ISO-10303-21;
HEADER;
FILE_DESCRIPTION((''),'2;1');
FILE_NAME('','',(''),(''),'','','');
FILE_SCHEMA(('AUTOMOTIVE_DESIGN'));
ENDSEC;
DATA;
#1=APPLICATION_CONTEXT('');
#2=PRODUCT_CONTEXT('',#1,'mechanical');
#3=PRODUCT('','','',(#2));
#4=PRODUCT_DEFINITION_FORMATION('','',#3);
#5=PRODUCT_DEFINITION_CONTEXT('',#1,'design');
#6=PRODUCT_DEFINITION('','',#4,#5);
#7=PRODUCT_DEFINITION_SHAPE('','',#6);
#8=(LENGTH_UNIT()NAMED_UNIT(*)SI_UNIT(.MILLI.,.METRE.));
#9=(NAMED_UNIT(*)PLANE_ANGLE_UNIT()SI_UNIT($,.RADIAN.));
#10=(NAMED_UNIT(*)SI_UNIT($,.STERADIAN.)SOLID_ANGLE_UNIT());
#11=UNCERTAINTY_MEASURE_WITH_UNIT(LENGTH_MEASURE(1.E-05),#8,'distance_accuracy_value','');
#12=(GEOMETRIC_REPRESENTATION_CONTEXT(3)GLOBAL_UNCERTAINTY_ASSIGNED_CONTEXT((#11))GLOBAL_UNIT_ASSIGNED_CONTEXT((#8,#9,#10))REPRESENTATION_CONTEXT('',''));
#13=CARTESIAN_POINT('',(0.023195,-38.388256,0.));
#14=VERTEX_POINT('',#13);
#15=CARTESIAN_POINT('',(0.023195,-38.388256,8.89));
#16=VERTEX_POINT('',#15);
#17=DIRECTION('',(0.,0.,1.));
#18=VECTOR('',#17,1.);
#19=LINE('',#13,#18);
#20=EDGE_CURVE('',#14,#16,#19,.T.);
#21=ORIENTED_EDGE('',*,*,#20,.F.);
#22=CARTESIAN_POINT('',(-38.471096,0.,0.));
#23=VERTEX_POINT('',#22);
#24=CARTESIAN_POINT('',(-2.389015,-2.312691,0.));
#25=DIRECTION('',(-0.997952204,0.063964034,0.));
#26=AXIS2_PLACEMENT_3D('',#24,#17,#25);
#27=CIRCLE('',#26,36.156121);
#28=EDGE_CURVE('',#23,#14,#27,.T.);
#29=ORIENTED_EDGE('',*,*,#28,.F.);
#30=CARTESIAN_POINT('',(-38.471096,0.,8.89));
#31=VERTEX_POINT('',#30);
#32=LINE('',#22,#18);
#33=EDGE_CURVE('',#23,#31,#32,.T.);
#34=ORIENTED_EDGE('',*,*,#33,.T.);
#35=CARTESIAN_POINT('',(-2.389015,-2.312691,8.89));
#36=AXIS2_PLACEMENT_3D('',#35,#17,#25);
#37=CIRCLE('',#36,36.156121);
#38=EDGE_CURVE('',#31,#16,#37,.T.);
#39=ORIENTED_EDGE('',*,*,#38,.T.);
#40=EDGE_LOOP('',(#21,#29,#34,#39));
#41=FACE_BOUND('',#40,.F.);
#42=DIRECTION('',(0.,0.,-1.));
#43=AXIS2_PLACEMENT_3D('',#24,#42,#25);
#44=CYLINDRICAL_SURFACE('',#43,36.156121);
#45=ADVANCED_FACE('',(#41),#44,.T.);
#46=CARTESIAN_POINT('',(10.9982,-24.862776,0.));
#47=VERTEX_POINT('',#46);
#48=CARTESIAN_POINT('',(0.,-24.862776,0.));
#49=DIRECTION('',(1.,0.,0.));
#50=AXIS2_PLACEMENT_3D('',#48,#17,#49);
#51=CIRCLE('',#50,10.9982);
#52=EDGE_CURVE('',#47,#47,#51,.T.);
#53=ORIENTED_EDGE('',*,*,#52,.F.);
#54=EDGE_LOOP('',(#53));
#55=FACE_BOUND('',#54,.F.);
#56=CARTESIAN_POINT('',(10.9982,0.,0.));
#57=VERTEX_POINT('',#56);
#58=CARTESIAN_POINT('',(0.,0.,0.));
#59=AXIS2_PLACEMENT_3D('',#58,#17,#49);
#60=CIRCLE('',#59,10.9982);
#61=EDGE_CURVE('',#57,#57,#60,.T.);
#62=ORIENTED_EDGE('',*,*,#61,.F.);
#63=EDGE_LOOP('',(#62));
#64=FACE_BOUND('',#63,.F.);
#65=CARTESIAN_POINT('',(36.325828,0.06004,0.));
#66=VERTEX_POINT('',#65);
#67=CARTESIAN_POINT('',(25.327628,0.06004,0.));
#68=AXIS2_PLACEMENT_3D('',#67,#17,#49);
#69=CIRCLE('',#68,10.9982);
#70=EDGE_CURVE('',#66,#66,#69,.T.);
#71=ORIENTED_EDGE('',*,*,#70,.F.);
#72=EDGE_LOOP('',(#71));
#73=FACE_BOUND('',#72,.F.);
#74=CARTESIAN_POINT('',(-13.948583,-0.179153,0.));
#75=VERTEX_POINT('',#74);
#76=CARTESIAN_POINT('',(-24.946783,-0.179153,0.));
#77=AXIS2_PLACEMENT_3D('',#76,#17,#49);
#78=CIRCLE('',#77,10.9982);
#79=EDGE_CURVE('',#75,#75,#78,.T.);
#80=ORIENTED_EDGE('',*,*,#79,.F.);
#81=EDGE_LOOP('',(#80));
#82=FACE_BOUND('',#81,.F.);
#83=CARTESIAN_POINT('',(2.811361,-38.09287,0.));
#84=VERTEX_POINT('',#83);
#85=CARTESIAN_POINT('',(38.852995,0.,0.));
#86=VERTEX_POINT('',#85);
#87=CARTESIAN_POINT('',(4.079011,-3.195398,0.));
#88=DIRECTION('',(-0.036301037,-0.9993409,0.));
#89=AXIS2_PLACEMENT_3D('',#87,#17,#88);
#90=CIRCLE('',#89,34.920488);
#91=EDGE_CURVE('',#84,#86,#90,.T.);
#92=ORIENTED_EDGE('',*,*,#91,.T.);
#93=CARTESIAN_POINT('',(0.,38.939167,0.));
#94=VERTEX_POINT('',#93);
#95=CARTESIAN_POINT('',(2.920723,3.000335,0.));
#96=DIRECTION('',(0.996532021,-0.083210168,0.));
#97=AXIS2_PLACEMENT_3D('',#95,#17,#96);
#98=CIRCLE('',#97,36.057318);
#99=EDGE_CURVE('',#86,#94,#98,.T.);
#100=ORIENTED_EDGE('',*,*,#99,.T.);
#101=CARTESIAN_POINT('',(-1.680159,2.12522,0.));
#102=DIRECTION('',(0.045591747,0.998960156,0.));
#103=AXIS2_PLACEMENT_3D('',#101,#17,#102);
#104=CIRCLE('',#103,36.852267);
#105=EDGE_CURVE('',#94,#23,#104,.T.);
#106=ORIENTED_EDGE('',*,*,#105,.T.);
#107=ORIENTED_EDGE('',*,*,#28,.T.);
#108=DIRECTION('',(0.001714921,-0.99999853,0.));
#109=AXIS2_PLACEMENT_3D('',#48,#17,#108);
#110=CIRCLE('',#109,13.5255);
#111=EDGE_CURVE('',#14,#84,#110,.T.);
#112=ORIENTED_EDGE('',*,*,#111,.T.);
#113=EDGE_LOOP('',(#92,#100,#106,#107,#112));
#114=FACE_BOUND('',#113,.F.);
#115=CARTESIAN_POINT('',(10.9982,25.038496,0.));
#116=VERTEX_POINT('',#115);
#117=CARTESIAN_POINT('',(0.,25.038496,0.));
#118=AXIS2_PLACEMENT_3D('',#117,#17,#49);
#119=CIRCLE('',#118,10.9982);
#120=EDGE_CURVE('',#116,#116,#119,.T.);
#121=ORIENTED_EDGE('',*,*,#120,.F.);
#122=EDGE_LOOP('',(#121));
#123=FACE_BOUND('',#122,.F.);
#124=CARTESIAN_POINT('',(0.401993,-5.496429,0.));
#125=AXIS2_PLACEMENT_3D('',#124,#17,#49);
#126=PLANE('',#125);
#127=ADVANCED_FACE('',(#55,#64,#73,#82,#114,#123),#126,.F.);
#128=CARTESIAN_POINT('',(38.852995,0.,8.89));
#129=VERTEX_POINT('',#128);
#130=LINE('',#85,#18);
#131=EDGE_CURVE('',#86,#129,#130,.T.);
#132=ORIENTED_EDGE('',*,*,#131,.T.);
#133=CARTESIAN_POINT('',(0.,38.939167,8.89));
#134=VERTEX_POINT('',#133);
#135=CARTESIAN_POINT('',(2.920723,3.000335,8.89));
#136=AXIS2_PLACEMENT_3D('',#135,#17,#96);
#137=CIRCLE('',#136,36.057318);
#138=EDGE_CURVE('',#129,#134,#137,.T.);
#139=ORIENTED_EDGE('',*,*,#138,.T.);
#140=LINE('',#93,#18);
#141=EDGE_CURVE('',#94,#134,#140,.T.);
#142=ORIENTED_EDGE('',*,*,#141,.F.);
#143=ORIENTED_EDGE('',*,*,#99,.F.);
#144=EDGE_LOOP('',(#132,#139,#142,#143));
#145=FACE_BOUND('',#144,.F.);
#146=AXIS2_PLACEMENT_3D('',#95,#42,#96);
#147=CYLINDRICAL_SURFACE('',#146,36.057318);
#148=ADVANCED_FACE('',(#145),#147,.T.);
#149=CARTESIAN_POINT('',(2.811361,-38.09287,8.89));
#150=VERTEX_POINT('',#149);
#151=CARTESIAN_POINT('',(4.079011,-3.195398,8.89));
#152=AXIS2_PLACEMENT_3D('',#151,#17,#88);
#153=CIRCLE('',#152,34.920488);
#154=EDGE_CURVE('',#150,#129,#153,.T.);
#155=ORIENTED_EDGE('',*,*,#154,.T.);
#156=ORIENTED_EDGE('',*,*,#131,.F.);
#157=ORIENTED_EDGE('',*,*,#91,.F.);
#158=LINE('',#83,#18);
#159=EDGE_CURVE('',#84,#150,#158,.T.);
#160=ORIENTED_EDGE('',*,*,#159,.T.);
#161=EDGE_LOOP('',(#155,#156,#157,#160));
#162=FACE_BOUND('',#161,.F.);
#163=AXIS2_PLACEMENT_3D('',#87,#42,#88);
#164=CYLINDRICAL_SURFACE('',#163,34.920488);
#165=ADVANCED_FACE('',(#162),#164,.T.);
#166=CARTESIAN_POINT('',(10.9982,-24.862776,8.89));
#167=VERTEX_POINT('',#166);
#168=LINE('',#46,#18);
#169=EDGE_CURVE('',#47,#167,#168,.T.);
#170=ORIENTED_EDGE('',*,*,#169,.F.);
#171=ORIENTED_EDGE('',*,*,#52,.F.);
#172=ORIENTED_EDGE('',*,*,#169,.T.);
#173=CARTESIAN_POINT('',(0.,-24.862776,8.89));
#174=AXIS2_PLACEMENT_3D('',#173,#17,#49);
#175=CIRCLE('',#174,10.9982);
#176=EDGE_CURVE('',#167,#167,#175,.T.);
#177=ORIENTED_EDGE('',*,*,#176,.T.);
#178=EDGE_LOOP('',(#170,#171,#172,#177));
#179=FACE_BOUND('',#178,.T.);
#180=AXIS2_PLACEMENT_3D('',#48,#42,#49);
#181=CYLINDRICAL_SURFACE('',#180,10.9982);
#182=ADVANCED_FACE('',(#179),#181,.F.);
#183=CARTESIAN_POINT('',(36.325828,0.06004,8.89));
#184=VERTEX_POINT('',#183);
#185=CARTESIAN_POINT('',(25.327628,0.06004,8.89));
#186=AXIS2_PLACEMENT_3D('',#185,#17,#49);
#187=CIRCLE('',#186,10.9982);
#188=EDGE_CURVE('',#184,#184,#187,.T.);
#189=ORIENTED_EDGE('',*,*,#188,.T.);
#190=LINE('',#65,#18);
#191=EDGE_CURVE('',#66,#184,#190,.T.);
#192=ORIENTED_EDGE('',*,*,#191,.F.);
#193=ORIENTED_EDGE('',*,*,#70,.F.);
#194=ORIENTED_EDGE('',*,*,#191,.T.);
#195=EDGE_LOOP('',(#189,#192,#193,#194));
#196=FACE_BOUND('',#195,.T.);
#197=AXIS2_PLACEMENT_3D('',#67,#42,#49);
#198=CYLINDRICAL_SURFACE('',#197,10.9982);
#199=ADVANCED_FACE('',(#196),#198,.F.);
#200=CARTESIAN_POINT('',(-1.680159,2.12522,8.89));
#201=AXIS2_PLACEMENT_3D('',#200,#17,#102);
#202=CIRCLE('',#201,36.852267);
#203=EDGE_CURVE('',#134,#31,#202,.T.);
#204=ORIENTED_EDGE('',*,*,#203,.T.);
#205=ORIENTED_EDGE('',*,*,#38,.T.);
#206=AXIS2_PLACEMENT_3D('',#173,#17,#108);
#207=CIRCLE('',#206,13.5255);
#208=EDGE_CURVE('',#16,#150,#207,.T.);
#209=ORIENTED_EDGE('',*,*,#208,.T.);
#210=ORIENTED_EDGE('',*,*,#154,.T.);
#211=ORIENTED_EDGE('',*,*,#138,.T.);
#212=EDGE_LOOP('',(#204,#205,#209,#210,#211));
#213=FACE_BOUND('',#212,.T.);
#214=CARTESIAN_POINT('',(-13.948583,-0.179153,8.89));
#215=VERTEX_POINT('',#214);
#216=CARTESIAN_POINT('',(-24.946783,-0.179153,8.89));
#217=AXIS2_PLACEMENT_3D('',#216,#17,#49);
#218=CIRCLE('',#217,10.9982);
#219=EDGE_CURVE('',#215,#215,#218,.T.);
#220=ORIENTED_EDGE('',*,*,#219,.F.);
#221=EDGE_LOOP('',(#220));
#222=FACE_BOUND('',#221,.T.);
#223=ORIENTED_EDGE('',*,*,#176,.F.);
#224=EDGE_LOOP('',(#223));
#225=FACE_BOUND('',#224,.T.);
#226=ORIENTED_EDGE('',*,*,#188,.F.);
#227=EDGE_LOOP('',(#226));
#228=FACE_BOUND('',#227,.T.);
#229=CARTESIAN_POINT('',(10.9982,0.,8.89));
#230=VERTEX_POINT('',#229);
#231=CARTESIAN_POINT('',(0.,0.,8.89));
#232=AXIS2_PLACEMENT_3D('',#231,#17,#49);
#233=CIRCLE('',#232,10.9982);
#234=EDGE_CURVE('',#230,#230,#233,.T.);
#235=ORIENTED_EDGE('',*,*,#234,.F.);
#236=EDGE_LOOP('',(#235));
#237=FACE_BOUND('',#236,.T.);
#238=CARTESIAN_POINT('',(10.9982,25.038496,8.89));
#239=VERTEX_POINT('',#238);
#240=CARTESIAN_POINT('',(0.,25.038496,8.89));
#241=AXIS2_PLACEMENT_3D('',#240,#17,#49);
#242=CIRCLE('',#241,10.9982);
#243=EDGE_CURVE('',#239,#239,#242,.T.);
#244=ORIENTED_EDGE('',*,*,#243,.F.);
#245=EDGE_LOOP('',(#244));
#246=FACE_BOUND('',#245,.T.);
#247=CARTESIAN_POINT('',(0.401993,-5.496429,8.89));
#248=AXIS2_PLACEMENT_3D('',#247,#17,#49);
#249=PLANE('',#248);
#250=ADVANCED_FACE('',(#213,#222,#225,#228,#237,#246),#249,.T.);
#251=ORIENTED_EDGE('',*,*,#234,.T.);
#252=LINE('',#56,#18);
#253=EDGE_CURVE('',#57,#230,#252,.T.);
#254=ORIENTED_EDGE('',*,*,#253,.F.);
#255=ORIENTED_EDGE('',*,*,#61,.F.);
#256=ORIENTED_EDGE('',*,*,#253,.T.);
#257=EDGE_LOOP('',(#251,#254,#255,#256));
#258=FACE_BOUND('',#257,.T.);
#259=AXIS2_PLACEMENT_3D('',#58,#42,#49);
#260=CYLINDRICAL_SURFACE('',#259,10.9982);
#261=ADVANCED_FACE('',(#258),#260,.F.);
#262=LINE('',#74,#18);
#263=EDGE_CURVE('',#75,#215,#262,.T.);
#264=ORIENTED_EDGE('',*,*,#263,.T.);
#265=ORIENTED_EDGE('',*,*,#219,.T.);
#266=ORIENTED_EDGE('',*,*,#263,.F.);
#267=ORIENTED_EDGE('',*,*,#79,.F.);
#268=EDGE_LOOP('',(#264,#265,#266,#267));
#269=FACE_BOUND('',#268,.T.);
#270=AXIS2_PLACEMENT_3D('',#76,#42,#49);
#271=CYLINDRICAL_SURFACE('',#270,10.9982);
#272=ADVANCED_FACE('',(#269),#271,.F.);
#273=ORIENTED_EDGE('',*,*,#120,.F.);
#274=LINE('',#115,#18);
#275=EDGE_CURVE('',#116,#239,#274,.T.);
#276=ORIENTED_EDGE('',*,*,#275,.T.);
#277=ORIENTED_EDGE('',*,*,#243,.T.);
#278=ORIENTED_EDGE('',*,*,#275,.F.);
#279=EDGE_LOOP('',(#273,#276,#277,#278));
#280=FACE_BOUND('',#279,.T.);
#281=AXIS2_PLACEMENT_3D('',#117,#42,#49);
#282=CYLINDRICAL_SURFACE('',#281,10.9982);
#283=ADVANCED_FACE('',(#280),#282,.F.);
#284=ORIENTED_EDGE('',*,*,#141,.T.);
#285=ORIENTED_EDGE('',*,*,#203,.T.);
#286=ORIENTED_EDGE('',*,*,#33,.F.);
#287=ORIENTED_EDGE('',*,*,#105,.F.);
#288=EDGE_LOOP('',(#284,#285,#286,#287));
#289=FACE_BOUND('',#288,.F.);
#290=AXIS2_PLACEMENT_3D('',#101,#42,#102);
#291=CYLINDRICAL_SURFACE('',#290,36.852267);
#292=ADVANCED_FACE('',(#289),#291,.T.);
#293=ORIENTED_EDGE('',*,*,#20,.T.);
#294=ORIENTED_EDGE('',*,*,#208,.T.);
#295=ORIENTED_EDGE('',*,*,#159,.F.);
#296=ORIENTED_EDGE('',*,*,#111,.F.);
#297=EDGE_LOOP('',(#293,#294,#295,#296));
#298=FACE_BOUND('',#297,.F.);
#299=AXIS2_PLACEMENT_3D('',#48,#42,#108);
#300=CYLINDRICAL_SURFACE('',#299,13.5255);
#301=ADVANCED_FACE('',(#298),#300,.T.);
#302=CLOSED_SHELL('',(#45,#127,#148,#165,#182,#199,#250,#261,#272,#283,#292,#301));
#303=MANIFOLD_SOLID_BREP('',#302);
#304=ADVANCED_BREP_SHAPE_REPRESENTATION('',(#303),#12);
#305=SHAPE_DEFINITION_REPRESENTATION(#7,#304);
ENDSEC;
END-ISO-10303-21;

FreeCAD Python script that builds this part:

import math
import FreeCAD as App
import Part
import Sketcher
Q = App.Units.Quantity

doc = App.newDocument("Part")
params = doc.addObject("Spreadsheet::Sheet", "Params")
for row, (alias, value) in enumerate([
    ("sketch1_diameter", "0.866 in"),
    ("pad1_length", "0.35 in"),
], start=1):
    params.set(f"A{row}", alias)
    params.set(f"B{row}", "=" + value)
    params.setAlias(f"B{row}", alias)

body = doc.addObject("PartDesign::Body", "Body")

sketch1 = doc.addObject("Sketcher::SketchObject", "Sketch")
body.addObject(sketch1)
sketch1.AttachmentSupport = (doc.XY_Plane, [""])
sketch1.MapMode = "FlatFace"
sketch1.addGeometry(Part.ArcOfCircle(Part.Circle(App.Vector(4.1, -3.2, 0), App.Vector(0, 0, 1), 34.9), math.radians(-92), math.radians(5)), False)
sketch1.addGeometry(Part.ArcOfCircle(Part.Circle(App.Vector(2.9, 3, 0), App.Vector(0, 0, 1), 36.1), math.radians(-5), math.radians(95)), False)
sketch1.addGeometry(Part.ArcOfCircle(Part.Circle(App.Vector(-1.7, 2.1, 0), App.Vector(0, 0, 1), 36.9), math.radians(87), math.radians(183)), False)
sketch1.addGeometry(Part.ArcOfCircle(Part.Circle(App.Vector(-2.4, -2.3, 0), App.Vector(0, 0, 1), 36.2), math.radians(176), math.radians(274)), False)
sketch1.addGeometry(Part.ArcOfCircle(Part.Circle(App.Vector(0, -24.9, 0), App.Vector(0, 0, 1), 13.5), math.radians(-89.9), math.radians(-78)), False)
sketch1.addGeometry(Part.Circle(App.Vector(0, -24.9, 0), App.Vector(0, 0, 1), 11), False)
sketch1.addGeometry(Part.Circle(App.Vector(-24.9, -0.2, 0), App.Vector(0, 0, 1), 11), False)
sketch1.addGeometry(Part.Circle(App.Vector(0, 0, 0), App.Vector(0, 0, 1), 11), False)
sketch1.addGeometry(Part.Circle(App.Vector(25.3, 0.1, 0), App.Vector(0, 0, 1), 11), False)
sketch1.addGeometry(Part.Circle(App.Vector(0, 25, 0), App.Vector(0, 0, 1), 11), False)
sketch1.addConstraint(Sketcher.Constraint("Coincident", 0, 2, 1, 1))
sketch1.addConstraint(Sketcher.Constraint("Coincident", 1, 2, 2, 1))
sketch1.addConstraint(Sketcher.Constraint("Coincident", 2, 2, 3, 1))
sketch1.addConstraint(Sketcher.Constraint("Coincident", 3, 2, 4, 1))
sketch1.addConstraint(Sketcher.Constraint("Coincident", 4, 2, 0, 1))
sketch1.addConstraint(Sketcher.Constraint("Coincident", 7, 3, -1, 1))
sketch1.addConstraint(Sketcher.Constraint("Coincident", 5, 3, 4, 3))
sketch1.addConstraint(Sketcher.Constraint("Equal", 5, 6))
sketch1.addConstraint(Sketcher.Constraint("Equal", 6, 7))
sketch1.addConstraint(Sketcher.Constraint("Equal", 7, 8))
sketch1.addConstraint(Sketcher.Constraint("Equal", 8, 9))
sketch1.addConstraint(Sketcher.Constraint("PointOnObject", 4, 3, -2))
sketch1.addConstraint(Sketcher.Constraint("PointOnObject", 9, 3, -2))
sketch1.addConstraint(Sketcher.Constraint("PointOnObject", 0, 2, -1))
sketch1.addConstraint(Sketcher.Constraint("PointOnObject", 1, 2, -2))
sketch1.addConstraint(Sketcher.Constraint("PointOnObject", 2, 2, -1))
sketch1.addConstraint(Sketcher.Constraint("Diameter", 5, Q("0.866 in")))
sketch1.addConstraint(Sketcher.Constraint("Radius", 4, Q("0.5325 in")))
sketch1.addConstraint(Sketcher.Constraint("Radius", 0, 34.920488))
sketch1.addConstraint(Sketcher.Constraint("Radius", 1, 36.057318))
sketch1.addConstraint(Sketcher.Constraint("Radius", 3, 36.156121))
sketch1.addConstraint(Sketcher.Constraint("Radius", 2, 36.852267))
sketch1.addConstraint(Sketcher.Constraint("DistanceX", -1, 1, 0, 3, 4.079011))
sketch1.addConstraint(Sketcher.Constraint("DistanceX", 2, 3, -1, 1, 1.680159))
sketch1.addConstraint(Sketcher.Constraint("DistanceY", -1, 1, 2, 3, 2.12522))
sketch1.addConstraint(Sketcher.Constraint("DistanceY", 3, 3, -1, 1, 2.312691))
sketch1.addConstraint(Sketcher.Constraint("DistanceX", -1, 1, 8, 3, 25.327628))
sketch1.addConstraint(Sketcher.Constraint("DistanceY", -1, 1, 8, 3, 0.06004))
sketch1.addConstraint(Sketcher.Constraint("DistanceX", -1, 1, 4, 2, 2.811361))
sketch1.addConstraint(Sketcher.Constraint("DistanceY", 4, 2, -1, 1, 38.09287))
sketch1.addConstraint(Sketcher.Constraint("DistanceY", 6, 3, 1, 3, 3.179489))
sketch1.addConstraint(Sketcher.Constraint("DistanceY", 1, 3, 9, 3, 22.038161))
sketch1.addConstraint(Sketcher.Constraint("DistanceX", 6, 3, -1, 1, 24.946783))
sketch1.setExpression("Constraints[16]", "Params.sketch1_diameter")
pad1 = doc.addObject("PartDesign::Pad", "Pad")
body.addObject(pad1)
pad1.Profile = sketch1
pad1.setExpression("Length", "Params.pad1_length")

doc.recompute()
